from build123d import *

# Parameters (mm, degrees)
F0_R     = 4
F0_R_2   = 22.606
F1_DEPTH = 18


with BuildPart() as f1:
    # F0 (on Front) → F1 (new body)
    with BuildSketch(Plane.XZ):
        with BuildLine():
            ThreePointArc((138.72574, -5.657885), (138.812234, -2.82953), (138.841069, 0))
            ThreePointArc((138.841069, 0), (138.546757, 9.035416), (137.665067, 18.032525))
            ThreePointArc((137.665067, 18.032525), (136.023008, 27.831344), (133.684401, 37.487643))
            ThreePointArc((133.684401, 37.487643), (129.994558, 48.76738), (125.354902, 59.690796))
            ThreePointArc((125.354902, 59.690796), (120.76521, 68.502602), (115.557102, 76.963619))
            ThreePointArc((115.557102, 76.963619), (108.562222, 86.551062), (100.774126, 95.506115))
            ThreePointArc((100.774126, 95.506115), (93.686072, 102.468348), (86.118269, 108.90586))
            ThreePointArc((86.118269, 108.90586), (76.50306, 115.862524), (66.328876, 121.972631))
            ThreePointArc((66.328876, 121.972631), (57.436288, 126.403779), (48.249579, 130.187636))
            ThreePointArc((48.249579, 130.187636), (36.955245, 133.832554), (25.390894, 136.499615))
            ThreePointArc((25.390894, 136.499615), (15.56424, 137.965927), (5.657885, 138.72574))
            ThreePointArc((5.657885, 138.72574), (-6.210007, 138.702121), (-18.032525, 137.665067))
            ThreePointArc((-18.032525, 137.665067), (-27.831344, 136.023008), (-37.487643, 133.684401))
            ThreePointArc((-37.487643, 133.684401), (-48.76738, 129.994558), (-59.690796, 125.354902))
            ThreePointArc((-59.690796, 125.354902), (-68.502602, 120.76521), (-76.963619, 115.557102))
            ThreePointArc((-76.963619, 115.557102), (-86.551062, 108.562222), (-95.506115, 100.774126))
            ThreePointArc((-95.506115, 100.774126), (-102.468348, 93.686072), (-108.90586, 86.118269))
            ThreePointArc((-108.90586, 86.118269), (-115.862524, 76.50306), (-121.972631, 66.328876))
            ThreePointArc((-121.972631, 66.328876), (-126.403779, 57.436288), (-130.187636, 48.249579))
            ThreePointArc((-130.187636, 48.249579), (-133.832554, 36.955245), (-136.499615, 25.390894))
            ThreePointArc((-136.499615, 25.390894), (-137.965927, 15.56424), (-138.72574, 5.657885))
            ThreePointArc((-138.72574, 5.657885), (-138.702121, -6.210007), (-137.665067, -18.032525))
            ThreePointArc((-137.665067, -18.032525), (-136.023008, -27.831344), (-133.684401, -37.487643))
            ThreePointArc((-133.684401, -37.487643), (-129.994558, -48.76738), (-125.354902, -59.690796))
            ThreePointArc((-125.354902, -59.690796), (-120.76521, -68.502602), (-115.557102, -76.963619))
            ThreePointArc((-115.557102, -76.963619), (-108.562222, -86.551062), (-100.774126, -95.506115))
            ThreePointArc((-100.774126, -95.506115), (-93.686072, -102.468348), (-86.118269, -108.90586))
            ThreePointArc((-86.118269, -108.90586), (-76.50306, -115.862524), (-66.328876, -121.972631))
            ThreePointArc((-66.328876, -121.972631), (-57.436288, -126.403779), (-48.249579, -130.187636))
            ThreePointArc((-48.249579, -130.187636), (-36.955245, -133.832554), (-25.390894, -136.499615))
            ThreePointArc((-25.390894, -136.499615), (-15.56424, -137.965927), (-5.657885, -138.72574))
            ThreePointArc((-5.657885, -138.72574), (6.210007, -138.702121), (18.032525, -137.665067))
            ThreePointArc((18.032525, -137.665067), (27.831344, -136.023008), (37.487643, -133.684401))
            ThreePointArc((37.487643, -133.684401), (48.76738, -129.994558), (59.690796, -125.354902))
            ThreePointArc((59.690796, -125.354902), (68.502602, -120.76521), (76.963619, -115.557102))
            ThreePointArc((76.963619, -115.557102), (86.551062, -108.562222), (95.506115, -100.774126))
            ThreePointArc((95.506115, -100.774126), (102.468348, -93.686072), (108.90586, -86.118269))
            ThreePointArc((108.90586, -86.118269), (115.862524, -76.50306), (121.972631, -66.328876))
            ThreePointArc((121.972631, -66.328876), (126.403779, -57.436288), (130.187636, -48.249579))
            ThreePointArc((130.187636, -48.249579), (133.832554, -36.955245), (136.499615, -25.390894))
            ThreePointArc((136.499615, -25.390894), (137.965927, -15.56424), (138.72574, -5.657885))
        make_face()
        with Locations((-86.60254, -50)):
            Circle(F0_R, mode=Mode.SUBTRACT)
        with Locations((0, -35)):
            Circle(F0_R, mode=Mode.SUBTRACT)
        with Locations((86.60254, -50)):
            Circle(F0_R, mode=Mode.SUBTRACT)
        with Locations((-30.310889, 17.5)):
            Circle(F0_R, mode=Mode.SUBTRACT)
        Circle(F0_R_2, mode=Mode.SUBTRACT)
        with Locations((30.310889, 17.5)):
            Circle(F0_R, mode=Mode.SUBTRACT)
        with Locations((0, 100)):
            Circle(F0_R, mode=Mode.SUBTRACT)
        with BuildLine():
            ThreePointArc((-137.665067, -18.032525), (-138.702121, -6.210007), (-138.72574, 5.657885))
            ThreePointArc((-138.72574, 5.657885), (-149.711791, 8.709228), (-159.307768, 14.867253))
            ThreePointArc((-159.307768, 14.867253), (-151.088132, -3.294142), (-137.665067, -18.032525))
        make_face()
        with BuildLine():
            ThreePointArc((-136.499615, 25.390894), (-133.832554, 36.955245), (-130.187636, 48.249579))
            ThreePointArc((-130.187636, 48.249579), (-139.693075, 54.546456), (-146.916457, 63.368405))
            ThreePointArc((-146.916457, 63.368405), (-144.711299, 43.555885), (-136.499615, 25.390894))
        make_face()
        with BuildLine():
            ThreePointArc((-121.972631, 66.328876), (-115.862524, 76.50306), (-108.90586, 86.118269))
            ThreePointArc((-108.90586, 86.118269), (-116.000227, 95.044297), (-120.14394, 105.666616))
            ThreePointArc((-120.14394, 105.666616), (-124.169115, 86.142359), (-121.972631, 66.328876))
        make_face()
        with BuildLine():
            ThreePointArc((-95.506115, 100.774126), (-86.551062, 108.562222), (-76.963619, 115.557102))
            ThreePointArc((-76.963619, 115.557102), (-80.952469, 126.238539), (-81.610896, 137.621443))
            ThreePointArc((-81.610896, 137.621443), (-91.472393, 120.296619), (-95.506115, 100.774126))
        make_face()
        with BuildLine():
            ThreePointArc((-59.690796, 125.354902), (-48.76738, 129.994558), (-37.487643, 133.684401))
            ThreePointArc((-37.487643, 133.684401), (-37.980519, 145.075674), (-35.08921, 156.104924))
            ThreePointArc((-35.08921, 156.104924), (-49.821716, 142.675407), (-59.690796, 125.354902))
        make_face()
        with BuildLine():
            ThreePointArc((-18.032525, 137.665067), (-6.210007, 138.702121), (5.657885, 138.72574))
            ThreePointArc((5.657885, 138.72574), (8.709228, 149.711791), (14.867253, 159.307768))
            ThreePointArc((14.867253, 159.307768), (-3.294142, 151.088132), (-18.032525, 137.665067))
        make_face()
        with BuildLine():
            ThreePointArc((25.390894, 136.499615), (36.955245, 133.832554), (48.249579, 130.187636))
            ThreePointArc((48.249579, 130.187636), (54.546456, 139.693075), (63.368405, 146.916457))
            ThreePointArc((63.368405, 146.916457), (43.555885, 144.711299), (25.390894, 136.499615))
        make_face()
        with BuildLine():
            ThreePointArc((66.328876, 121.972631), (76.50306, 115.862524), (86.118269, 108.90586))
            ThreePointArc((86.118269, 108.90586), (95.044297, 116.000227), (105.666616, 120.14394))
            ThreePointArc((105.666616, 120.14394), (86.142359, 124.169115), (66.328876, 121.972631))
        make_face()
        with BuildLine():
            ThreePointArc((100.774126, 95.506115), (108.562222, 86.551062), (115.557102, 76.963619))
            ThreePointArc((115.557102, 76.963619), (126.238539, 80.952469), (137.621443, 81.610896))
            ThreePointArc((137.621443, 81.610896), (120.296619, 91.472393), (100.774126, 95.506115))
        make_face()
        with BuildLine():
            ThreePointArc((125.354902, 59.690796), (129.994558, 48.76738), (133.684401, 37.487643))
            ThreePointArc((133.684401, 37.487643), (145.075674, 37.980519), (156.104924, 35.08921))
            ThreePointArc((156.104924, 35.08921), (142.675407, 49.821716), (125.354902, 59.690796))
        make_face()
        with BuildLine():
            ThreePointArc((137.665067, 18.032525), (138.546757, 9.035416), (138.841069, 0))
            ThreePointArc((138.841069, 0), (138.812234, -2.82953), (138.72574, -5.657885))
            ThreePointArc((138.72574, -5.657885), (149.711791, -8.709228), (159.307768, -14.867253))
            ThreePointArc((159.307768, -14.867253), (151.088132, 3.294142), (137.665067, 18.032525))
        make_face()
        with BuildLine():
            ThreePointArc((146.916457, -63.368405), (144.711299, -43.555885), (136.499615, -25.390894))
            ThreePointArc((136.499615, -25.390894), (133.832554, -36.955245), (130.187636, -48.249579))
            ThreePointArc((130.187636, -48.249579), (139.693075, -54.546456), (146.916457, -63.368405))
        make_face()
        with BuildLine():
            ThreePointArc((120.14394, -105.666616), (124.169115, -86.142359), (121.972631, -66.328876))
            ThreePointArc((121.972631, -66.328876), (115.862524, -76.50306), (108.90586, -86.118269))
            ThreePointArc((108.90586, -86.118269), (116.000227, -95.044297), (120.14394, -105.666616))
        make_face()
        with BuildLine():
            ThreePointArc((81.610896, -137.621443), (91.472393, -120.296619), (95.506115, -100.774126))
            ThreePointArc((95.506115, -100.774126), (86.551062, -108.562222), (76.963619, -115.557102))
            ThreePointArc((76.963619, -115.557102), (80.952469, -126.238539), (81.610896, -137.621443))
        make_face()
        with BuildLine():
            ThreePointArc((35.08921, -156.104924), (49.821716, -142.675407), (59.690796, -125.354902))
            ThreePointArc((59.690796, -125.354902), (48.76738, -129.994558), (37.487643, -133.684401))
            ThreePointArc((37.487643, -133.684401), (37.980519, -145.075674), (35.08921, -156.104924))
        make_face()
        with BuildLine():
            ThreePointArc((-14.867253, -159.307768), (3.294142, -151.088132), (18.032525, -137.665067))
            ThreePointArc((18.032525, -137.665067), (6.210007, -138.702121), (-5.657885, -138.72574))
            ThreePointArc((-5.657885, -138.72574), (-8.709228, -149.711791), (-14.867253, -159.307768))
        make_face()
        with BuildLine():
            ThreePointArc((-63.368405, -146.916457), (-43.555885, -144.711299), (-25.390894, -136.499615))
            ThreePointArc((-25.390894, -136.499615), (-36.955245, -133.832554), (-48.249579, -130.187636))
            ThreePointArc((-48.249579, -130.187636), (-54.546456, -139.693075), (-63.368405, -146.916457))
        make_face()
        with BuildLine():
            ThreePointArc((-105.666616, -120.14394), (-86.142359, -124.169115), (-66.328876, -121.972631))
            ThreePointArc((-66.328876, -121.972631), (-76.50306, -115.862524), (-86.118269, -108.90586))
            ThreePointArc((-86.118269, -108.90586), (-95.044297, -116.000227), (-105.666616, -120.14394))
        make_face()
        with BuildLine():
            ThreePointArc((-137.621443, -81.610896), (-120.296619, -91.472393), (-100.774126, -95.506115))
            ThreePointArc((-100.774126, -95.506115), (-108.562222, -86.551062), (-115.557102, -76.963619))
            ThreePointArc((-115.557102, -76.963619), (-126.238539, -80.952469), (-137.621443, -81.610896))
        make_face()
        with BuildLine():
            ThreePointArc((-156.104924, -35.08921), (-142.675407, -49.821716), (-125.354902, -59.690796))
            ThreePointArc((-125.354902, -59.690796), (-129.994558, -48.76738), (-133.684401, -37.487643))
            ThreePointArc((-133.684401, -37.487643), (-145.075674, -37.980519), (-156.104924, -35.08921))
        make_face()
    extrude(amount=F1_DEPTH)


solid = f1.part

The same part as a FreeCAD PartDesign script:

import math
import FreeCAD as App
import Part
import Sketcher
Q = App.Units.Quantity

doc = App.newDocument("Part")
body = doc.addObject("PartDesign::Body", "Body")

sketch1 = body.newObject("Sketcher::SketchObject", "Sketch")
sketch1.AttachmentSupport = (doc.getObject("XZ_Plane"), [""])
sketch1.MapMode = "FlatFace"
sketch1.addGeometry([
    Part.ArcOfCircle(Part.Circle(App.Vector(-0.000171, -0.00004, 0), App.Vector(0, 0, 1), 138.841245), math.radians(7.462601), math.radians(15.664501)),
    Part.ArcOfCircle(Part.Circle(App.Vector(141.012711, -0.000011, 0), App.Vector(0, 0, 1), 38.197229), math.radians(66.726992), math.radians(101.06103)),
    Part.ArcOfCircle(Part.Circle(App.Vector(102.815496, 0.000003, 0), App.Vector(0, 0, 1), 63.80451), math.radians(33.363493), math.radians(69.313327)),
    Part.ArcOfCircle(Part.Circle(App.Vector(-0.000121, -0.000072, 0), App.Vector(0, 0, 1), 138.84121), math.radians(25.4626), math.radians(33.664501)),
    Part.ArcOfCircle(Part.Circle(App.Vector(134.111059, 43.575321, 0), App.Vector(0, 0, 1), 38.197222), math.radians(84.726988), math.radians(119.061033)),
    Part.ArcOfCircle(Part.Circle(App.Vector(97.78335, 31.771747, 0), App.Vector(0, 0, 1), 63.804502), math.radians(51.363491), math.radians(87.31333)),
    Part.ArcOfCircle(Part.Circle(App.Vector(-0.000104, -0.000109, 0), App.Vector(0, 0, 1), 138.84122), math.radians(43.462597), math.radians(51.664499)),
    Part.ArcOfCircle(Part.Circle(App.Vector(114.081691, 82.885176, 0), App.Vector(0, 0, 1), 38.197238), math.radians(102.726998), math.radians(137.061027)),
    Part.ArcOfCircle(Part.Circle(App.Vector(83.179482, 60.433429, 0), App.Vector(0, 0, 1), 63.804517), math.radians(69.363496), math.radians(105.313326)),
    Part.ArcOfCircle(Part.Circle(App.Vector(0.000032, 0.000066, 0), App.Vector(0, 0, 1), 138.840996), math.radians(61.462593), math.radians(69.664507)),
    Part.ArcOfCircle(Part.Circle(App.Vector(82.885197, 114.081677, 0), App.Vector(0, 0, 1), 38.197224), math.radians(120.72699), math.radians(155.061033)),
    Part.ArcOfCircle(Part.Circle(App.Vector(60.43343, 83.179489, 0), App.Vector(0, 0, 1), 63.804507), math.radians(87.363493), math.radians(123.31333)),
    Part.ArcOfCircle(Part.Circle(App.Vector(0.000008, 0.000116, 0), App.Vector(0, 0, 1), 138.840953), math.radians(79.462589), math.radians(87.664506)),
    Part.ArcOfCircle(Part.Circle(App.Vector(43.57532, 134.111061, 0), App.Vector(0, 0, 1), 38.197214), math.radians(138.726985), math.radians(173.061037)),
    Part.ArcOfCircle(Part.Circle(App.Vector(31.771741, 97.783338, 0), App.Vector(0, 0, 1), 63.804523), math.radians(105.363497), math.radians(141.313324)),
    Part.ArcOfCircle(Part.Circle(App.Vector(0.00004, -0.000171, 0), App.Vector(0, 0, 1), 138.841245), math.radians(97.462601), math.radians(105.664501)),
    Part.ArcOfCircle(Part.Circle(App.Vector(0.000011, 141.012711, 0), App.Vector(0, 0, 1), 38.197229), math.radians(156.726992), math.radians(191.06103)),
    Part.ArcOfCircle(Part.Circle(App.Vector(-0.000003, 102.815496, 0), App.Vector(0, 0, 1), 63.80451), math.radians(123.363493), math.radians(159.313327)),
    Part.ArcOfCircle(Part.Circle(App.Vector(0.000072, -0.000121, 0), App.Vector(0, 0, 1), 138.84121), math.radians(115.4626), math.radians(123.664501)),
    Part.ArcOfCircle(Part.Circle(App.Vector(-43.575321, 134.111059, 0), App.Vector(0, 0, 1), 38.197222), math.radians(174.726988), math.radians(209.061033)),
    Part.ArcOfCircle(Part.Circle(App.Vector(-31.771747, 97.78335, 0), App.Vector(0, 0, 1), 63.804502), math.radians(141.363491), math.radians(177.31333)),
    Part.ArcOfCircle(Part.Circle(App.Vector(0.000109, -0.000104, 0), App.Vector(0, 0, 1), 138.84122), math.radians(133.462597), math.radians(141.664499)),
    Part.ArcOfCircle(Part.Circle(App.Vector(-82.885176, 114.081691, 0), App.Vector(0, 0, 1), 38.197238), math.radians(-167.273002), math.radians(-132.938973)),
    Part.ArcOfCircle(Part.Circle(App.Vector(-60.433429, 83.179482, 0), App.Vector(0, 0, 1), 63.804517), math.radians(159.363496), math.radians(195.313326)),
    Part.ArcOfCircle(Part.Circle(App.Vector(-0.000066, 0.000032, 0), App.Vector(0, 0, 1), 138.840996), math.radians(151.462593), math.radians(159.664507)),
    Part.ArcOfCircle(Part.Circle(App.Vector(-114.081677, 82.885197, 0), App.Vector(0, 0, 1), 38.197224), math.radians(-149.27301), math.radians(-114.938967)),
    Part.ArcOfCircle(Part.Circle(App.Vector(-83.179489, 60.43343, 0), App.Vector(0, 0, 1), 63.804507), math.radians(177.363493), math.radians(213.31333)),
    Part.ArcOfCircle(Part.Circle(App.Vector(-0.000116, 0.000008, 0), App.Vector(0, 0, 1), 138.840953), math.radians(169.462589), math.radians(177.664506)),
    Part.ArcOfCircle(Part.Circle(App.Vector(-134.111061, 43.57532, 0), App.Vector(0, 0, 1), 38.197214), math.radians(-131.273015), math.radians(-96.938963)),
    Part.ArcOfCircle(Part.Circle(App.Vector(-97.783338, 31.771741, 0), App.Vector(0, 0, 1), 63.804523), math.radians(-164.636503), math.radians(-128.686676)),
    Part.ArcOfCircle(Part.Circle(App.Vector(0.000171, 0.00004, 0), App.Vector(0, 0, 1), 138.841245), math.radians(-172.537399), math.radians(-164.335499)),
    Part.ArcOfCircle(Part.Circle(App.Vector(-141.012711, 0.000011, 0), App.Vector(0, 0, 1), 38.197229), math.radians(-113.273008), math.radians(-78.93897)),
    Part.ArcOfCircle(Part.Circle(App.Vector(-102.815496, -0.000003, 0), App.Vector(0, 0, 1), 63.80451), math.radians(-146.636507), math.radians(-110.686673)),
    Part.ArcOfCircle(Part.Circle(App.Vector(0.000121, 0.000072, 0), App.Vector(0, 0, 1), 138.84121), math.radians(-154.5374), math.radians(-146.335499)),
    Part.ArcOfCircle(Part.Circle(App.Vector(-134.111059, -43.575321, 0), App.Vector(0, 0, 1), 38.197222), math.radians(-95.273012), math.radians(-60.938967)),
    Part.ArcOfCircle(Part.Circle(App.Vector(-97.78335, -31.771747, 0), App.Vector(0, 0, 1), 63.804502), math.radians(-128.636509), math.radians(-92.68667)),
    Part.ArcOfCircle(Part.Circle(App.Vector(0.000104, 0.000109, 0), App.Vector(0, 0, 1), 138.84122), math.radians(-136.537403), math.radians(-128.335501)),
    Part.ArcOfCircle(Part.Circle(App.Vector(-114.081691, -82.885176, 0), App.Vector(0, 0, 1), 38.197238), math.radians(-77.273002), math.radians(-42.938973)),
    Part.ArcOfCircle(Part.Circle(App.Vector(-83.179482, -60.433429, 0), App.Vector(0, 0, 1), 63.804517), math.radians(-110.636504), math.radians(-74.686674)),
    Part.ArcOfCircle(Part.Circle(App.Vector(-0.000032, -0.000066, 0), App.Vector(0, 0, 1), 138.840996), math.radians(-118.537407), math.radians(-110.335493)),
    Part.ArcOfCircle(Part.Circle(App.Vector(-82.885197, -114.081677, 0), App.Vector(0, 0, 1), 38.197224), math.radians(-59.27301), math.radians(-24.938967)),
    Part.ArcOfCircle(Part.Circle(App.Vector(-60.43343, -83.179489, 0), App.Vector(0, 0, 1), 63.804507), math.radians(-92.636507), math.radians(-56.68667)),
    Part.ArcOfCircle(Part.Circle(App.Vector(-0.000008, -0.000116, 0), App.Vector(0, 0, 1), 138.840953), math.radians(-100.537411), math.radians(-92.335494)),
    Part.ArcOfCircle(Part.Circle(App.Vector(-43.57532, -134.111061, 0), App.Vector(0, 0, 1), 38.197214), math.radians(-41.273015), math.radians(-6.938963)),
    Part.ArcOfCircle(Part.Circle(App.Vector(-31.771741, -97.783338, 0), App.Vector(0, 0, 1), 63.804523), math.radians(-74.636503), math.radians(-38.686676)),
    Part.ArcOfCircle(Part.Circle(App.Vector(-0.00004, 0.000171, 0), App.Vector(0, 0, 1), 138.841245), math.radians(-82.537399), math.radians(-74.335499)),
    Part.ArcOfCircle(Part.Circle(App.Vector(-0.000011, -141.012711, 0), App.Vector(0, 0, 1), 38.197229), math.radians(-23.273008), math.radians(11.06103)),
    Part.ArcOfCircle(Part.Circle(App.Vector(0.000003, -102.815496, 0), App.Vector(0, 0, 1), 63.80451), math.radians(-56.636507), math.radians(-20.686673)),
    Part.ArcOfCircle(Part.Circle(App.Vector(-0.000072, 0.000121, 0), App.Vector(0, 0, 1), 138.84121), math.radians(-64.5374), math.radians(-56.335499)),
    Part.ArcOfCircle(Part.Circle(App.Vector(43.575321, -134.111059, 0), App.Vector(0, 0, 1), 38.197222), math.radians(-5.273012), math.radians(29.061033)),
    Part.ArcOfCircle(Part.Circle(App.Vector(31.771747, -97.78335, 0), App.Vector(0, 0, 1), 63.804502), math.radians(-38.636509), math.radians(-2.68667)),
    Part.ArcOfCircle(Part.Circle(App.Vector(-0.000109, 0.000104, 0), App.Vector(0, 0, 1), 138.84122), math.radians(-46.537403), math.radians(-38.335501)),
    Part.ArcOfCircle(Part.Circle(App.Vector(82.885176, -114.081691, 0), App.Vector(0, 0, 1), 38.197238), math.radians(12.726998), math.radians(47.061027)),
    Part.ArcOfCircle(Part.Circle(App.Vector(60.433429, -83.179482, 0), App.Vector(0, 0, 1), 63.804517), math.radians(-20.636504), math.radians(15.313326)),
    Part.ArcOfCircle(Part.Circle(App.Vector(0.000066, -0.000032, 0), App.Vector(0, 0, 1), 138.840996), math.radians(-28.537407), math.radians(-20.335493)),
    Part.ArcOfCircle(Part.Circle(App.Vector(114.081677, -82.885197, 0), App.Vector(0, 0, 1), 38.197224), math.radians(30.72699), math.radians(65.061033)),
    Part.ArcOfCircle(Part.Circle(App.Vector(83.179489, -60.43343, 0), App.Vector(0, 0, 1), 63.804507), math.radians(-2.636507), math.radians(33.31333)),
    Part.ArcOfCircle(Part.Circle(App.Vector(0.000116, -0.000008, 0), App.Vector(0, 0, 1), 138.840953), math.radians(-10.537411), math.radians(-2.335494)),
    Part.ArcOfCircle(Part.Circle(App.Vector(134.111061, -43.57532, 0), App.Vector(0, 0, 1), 38.197214), math.radians(48.726985), math.radians(83.061037)),
    Part.ArcOfCircle(Part.Circle(App.Vector(97.783338, -31.771741, 0), App.Vector(0, 0, 1), 63.804523), math.radians(15.363497), math.radians(51.313324)),
    Part.Circle(App.Vector(-86.60254, -50, 0), App.Vector(0, 0, 1), 4),
    Part.Circle(App.Vector(-30.310889, 17.5, 0), App.Vector(0, 0, 1), 4),
    Part.Circle(App.Vector(0, -35, 0), App.Vector(0, 0, 1), 4),
    Part.Circle(App.Vector(86.60254, -50, 0), App.Vector(0, 0, 1), 4),
    Part.Circle(App.Vector(0, 0, 0), App.Vector(0, 0, 1), 22.606),
    Part.Circle(App.Vector(30.310889, 17.5, 0), App.Vector(0, 0, 1), 4),
    Part.Circle(App.Vector(0, 100, 0), App.Vector(0, 0, 1), 4),
], False)
sketch1.addConstraint([
    Sketcher.Constraint("Coincident", 0, 2, 1, 2),
    Sketcher.Constraint("Coincident", 1, 1, 2, 1),
    Sketcher.Constraint("Coincident", 2, 2, 3, 1),
    Sketcher.Constraint("Coincident", 3, 2, 4, 2),
    Sketcher.Constraint("Coincident", 4, 1, 5, 1),
    Sketcher.Constraint("Coincident", 5, 2, 6, 1),
    Sketcher.Constraint("Coincident", 6, 2, 7, 2),
    Sketcher.Constraint("Coincident", 7, 1, 8, 1),
    Sketcher.Constraint("Coincident", 8, 2, 9, 1),
    Sketcher.Constraint("Coincident", 9, 2, 10, 2),
    Sketcher.Constraint("Coincident", 10, 1, 11, 1),
    Sketcher.Constraint("Coincident", 11, 2, 12, 1),
    Sketcher.Constraint("Coincident", 12, 2, 13, 2),
    Sketcher.Constraint("Coincident", 13, 1, 14, 1),
    Sketcher.Constraint("Coincident", 14, 2, 15, 1),
    Sketcher.Constraint("Coincident", 15, 2, 16, 2),
    Sketcher.Constraint("Coincident", 16, 1, 17, 1),
    Sketcher.Constraint("Coincident", 17, 2, 18, 1),
    Sketcher.Constraint("Coincident", 18, 2, 19, 2),
    Sketcher.Constraint("Coincident", 19, 1, 20, 1),
    Sketcher.Constraint("Coincident", 20, 2, 21, 1),
    Sketcher.Constraint("Coincident", 21, 2, 22, 2),
    Sketcher.Constraint("Coincident", 22, 1, 23, 1),
    Sketcher.Constraint("Coincident", 23, 2, 24, 1),
    Sketcher.Constraint("Coincident", 24, 2, 25, 2),
    Sketcher.Constraint("Coincident", 25, 1, 26, 1),
    Sketcher.Constraint("Coincident", 26, 2, 27, 1),
    Sketcher.Constraint("Coincident", 27, 2, 28, 2),
    Sketcher.Constraint("Coincident", 28, 1, 29, 1),
    Sketcher.Constraint("Coincident", 29, 2, 30, 1),
    Sketcher.Constraint("Coincident", 30, 2, 31, 2),
    Sketcher.Constraint("Coincident", 31, 1, 32, 1),
    Sketcher.Constraint("Coincident", 32, 2, 33, 1),
    Sketcher.Constraint("Coincident", 33, 2, 34, 2),
    Sketcher.Constraint("Coincident", 34, 1, 35, 1),
    Sketcher.Constraint("Coincident", 35, 2, 36, 1),
    Sketcher.Constraint("Coincident", 36, 2, 37, 2),
    Sketcher.Constraint("Coincident", 37, 1, 38, 1),
    Sketcher.Constraint("Coincident", 38, 2, 39, 1),
    Sketcher.Constraint("Coincident", 39, 2, 40, 2),
    Sketcher.Constraint("Coincident", 40, 1, 41, 1),
    Sketcher.Constraint("Coincident", 41, 2, 42, 1),
    Sketcher.Constraint("Coincident", 42, 2, 43, 2),
    Sketcher.Constraint("Coincident", 43, 1, 44, 1),
    Sketcher.Constraint("Coincident", 44, 2, 45, 1),
    Sketcher.Constraint("Coincident", 45, 2, 46, 2),
    Sketcher.Constraint("Coincident", 46, 1, 47, 1),
    Sketcher.Constraint("Coincident", 47, 2, 48, 1),
    Sketcher.Constraint("Coincident", 48, 2, 49, 2),
    Sketcher.Constraint("Coincident", 49, 1, 50, 1),
    Sketcher.Constraint("Coincident", 50, 2, 51, 1),
    Sketcher.Constraint("Coincident", 51, 2, 52, 2),
    Sketcher.Constraint("Coincident", 52, 1, 53, 1),
    Sketcher.Constraint("Coincident", 53, 2, 54, 1),
    Sketcher.Constraint("Coincident", 54, 2, 55, 2),
    Sketcher.Constraint("Coincident", 55, 1, 56, 1),
    Sketcher.Constraint("Coincident", 56, 2, 57, 1),
    Sketcher.Constraint("Coincident", 57, 2, 58, 2),
    Sketcher.Constraint("Coincident", 58, 1, 59, 1),
    Sketcher.Constraint("Coincident", 59, 2, 0, 1),
    Sketcher.Constraint("Coincident", 64, 3, -1, 1),
    Sketcher.Constraint("PointOnObject", 62, 3, -2),
    Sketcher.Constraint("PointOnObject", 66, 3, -2),
    Sketcher.Constraint("Diameter", 60, Q("8 mm")),
    Sketcher.Constraint("Diameter", 61, Q("8 mm")),
    Sketcher.Constraint("Diameter", 62, Q("8 mm")),
    Sketcher.Constraint("Diameter", 63, Q("8 mm")),
    Sketcher.Constraint("Diameter", 65, Q("8 mm")),
    Sketcher.Constraint("Diameter", 66, Q("8 mm")),
    Sketcher.Constraint("Diameter", 64, Q("45.212 mm")),
    Sketcher.Constraint("DistanceY", 60, 3, -1, 1, Q("50 mm")),
    Sketcher.Constraint("DistanceY", 62, 3, -1, 1, Q("35 mm")),
    Sketcher.Constraint("DistanceY", 63, 3, -1, 1, Q("50 mm")),
    Sketcher.Constraint("DistanceY", -1, 1, 66, 3, Q("100 mm")),
    Sketcher.Constraint("DistanceY", -1, 1, 61, 3, Q("17.5 mm")),
    Sketcher.Constraint("DistanceY", -1, 1, 65, 3, Q("17.5 mm")),
    Sketcher.Constraint("Radius", 5, Q("63.804502 mm")),
    Sketcher.Constraint("Radius", 20, Q("63.804502 mm")),
    Sketcher.Constraint("Radius", 35, Q("63.804502 mm")),
    Sketcher.Constraint("Radius", 50, Q("63.804502 mm")),
    Sketcher.Constraint("Radius", 1, Q("38.197229 mm")),
    Sketcher.Constraint("Radius", 2, Q("63.80451 mm")),
    Sketcher.Constraint("Radius", 3, Q("138.84121 mm")),
    Sketcher.Constraint("Radius", 4, Q("38.197222 mm")),
    Sketcher.Constraint("Radius", 6, Q("138.84122 mm")),
    Sketcher.Constraint("Radius", 7, Q("38.197238 mm")),
    Sketcher.Constraint("Radius", 16, Q("38.197229 mm")),
    Sketcher.Constraint("Radius", 17, Q("63.80451 mm")),
    Sketcher.Constraint("Radius", 18, Q("138.84121 mm")),
    Sketcher.Constraint("Radius", 19, Q("38.197222 mm")),
    Sketcher.Constraint("Radius", 21, Q("138.84122 mm")),
    Sketcher.Constraint("Radius", 22, Q("38.197238 mm")),
    Sketcher.Constraint("Radius", 31, Q("38.197229 mm")),
    Sketcher.Constraint("Radius", 32, Q("63.80451 mm")),
    Sketcher.Constraint("Radius", 33, Q("138.84121 mm")),
    Sketcher.Constraint("Radius", 34, Q("38.197222 mm")),
    Sketcher.Constraint("Radius", 36, Q("138.84122 mm")),
    Sketcher.Constraint("Radius", 37, Q("38.197238 mm")),
    Sketcher.Constraint("Radius", 46, Q("38.197229 mm")),
    Sketcher.Constraint("Radius", 47, Q("63.80451 mm")),
    Sketcher.Constraint("Radius", 48, Q("138.84121 mm")),
    Sketcher.Constraint("Radius", 49, Q("38.197222 mm")),
    Sketcher.Constraint("Radius", 51, Q("138.84122 mm")),
    Sketcher.Constraint("Radius", 52, Q("38.197238 mm")),
    Sketcher.Constraint("Radius", 0, Q("138.841245 mm")),
    Sketcher.Constraint("Radius", 8, Q("63.804517 mm")),
    Sketcher.Constraint("Radius", 9, Q("138.840996 mm")),
    Sketcher.Constraint("Radius", 10, Q("38.197224 mm")),
    Sketcher.Constraint("Radius", 11, Q("63.804507 mm")),
    Sketcher.Constraint("Radius", 12, Q("138.840953 mm")),
    Sketcher.Constraint("Radius", 13, Q("38.197214 mm")),
    Sketcher.Constraint("Radius", 14, Q("63.804523 mm")),
    Sketcher.Constraint("Radius", 15, Q("138.841245 mm")),
    Sketcher.Constraint("Radius", 23, Q("63.804517 mm")),
    Sketcher.Constraint("Radius", 24, Q("138.840996 mm")),
    Sketcher.Constraint("Radius", 25, Q("38.197224 mm")),
    Sketcher.Constraint("Radius", 26, Q("63.804507 mm")),
    Sketcher.Constraint("Radius", 27, Q("138.840953 mm")),
    Sketcher.Constraint("Radius", 28, Q("38.197214 mm")),
    Sketcher.Constraint("Radius", 29, Q("63.804523 mm")),
    Sketcher.Constraint("Radius", 30, Q("138.841245 mm")),
    Sketcher.Constraint("Radius", 38, Q("63.804517 mm")),
    Sketcher.Constraint("Radius", 39, Q("138.840996 mm")),
    Sketcher.Constraint("Radius", 40, Q("38.197224 mm")),
    Sketcher.Constraint("Radius", 41, Q("63.804507 mm")),
    Sketcher.Constraint("Radius", 42, Q("138.840953 mm")),
    Sketcher.Constraint("Radius", 43, Q("38.197214 mm")),
    Sketcher.Constraint("Radius", 44, Q("63.804523 mm")),
    Sketcher.Constraint("Radius", 45, Q("138.841245 mm")),
    Sketcher.Constraint("Radius", 53, Q("63.804517 mm")),
    Sketcher.Constraint("Radius", 54, Q("138.840996 mm")),
    Sketcher.Constraint("Radius", 55, Q("38.197224 mm")),
    Sketcher.Constraint("Radius", 56, Q("63.804507 mm")),
    Sketcher.Constraint("Radius", 57, Q("138.840953 mm")),
    Sketcher.Constraint("Radius", 58, Q("38.197214 mm")),
    Sketcher.Constraint("Radius", 59, Q("63.804523 mm")),
    Sketcher.Constraint("DistanceX", -1, 1, 0, 2, Q("133.684401 mm")),
    Sketcher.Constraint("DistanceX", -1, 1, 2, 2, Q("125.354902 mm")),
    Sketcher.Constraint("DistanceX", -1, 1, 3, 2, Q("115.557102 mm")),
    Sketcher.Constraint("DistanceY", -1, 1, 15, 2, Q("133.684401 mm")),
    Sketcher.Constraint("DistanceY", -1, 1, 17, 2, Q("125.354902 mm")),
    Sketcher.Constraint("DistanceY", -1, 1, 18, 2, Q("115.557102 mm")),
    Sketcher.Constraint("DistanceX", 30, 2, -1, 1, Q("133.684401 mm")),
    Sketcher.Constraint("DistanceX", 32, 2, -1, 1, Q("125.354902 mm")),
    Sketcher.Constraint("DistanceX", 33, 2, -1, 1, Q("115.557102 mm")),
    Sketcher.Constraint("DistanceY", 45, 2, -1, 1, Q("133.684401 mm")),
    Sketcher.Constraint("DistanceY", 47, 2, -1, 1, Q("125.354902 mm")),
    Sketcher.Constraint("DistanceY", 48, 2, -1, 1, Q("115.557102 mm")),
    Sketcher.Constraint("DistanceX", 0, 3, -1, 1, Q("0.000171 mm")),
    Sketcher.Constraint("DistanceX", -1, 1, 1, 3, Q("141.012711 mm")),
    Sketcher.Constraint("DistanceX", 3, 3, -1, 1, Q("0.000121 mm")),
    Sketcher.Constraint("DistanceX", -1, 1, 4, 3, Q("134.111059 mm")),
    Sketcher.Constraint("DistanceY", -1, 1, 4, 3, Q("43.575321 mm")),
    Sketcher.Constraint("DistanceX", -1, 1, 5, 3, Q("97.78335 mm")),
    Sketcher.Constraint("DistanceY", 6, 3, -1, 1, Q("0.000109 mm")),
    Sketcher.Constraint("DistanceX", -1, 1, 7, 3, Q("114.081691 mm")),
    Sketcher.Constraint("DistanceY", -1, 1, 8, 3, Q("60.433429 mm")),
    Sketcher.Constraint("DistanceX", -1, 1, 11, 3, Q("60.43343 mm")),
    Sketcher.Constraint("DistanceY", -1, 1, 11, 3, Q("83.179489 mm")),
    Sketcher.Constraint("DistanceX", -1, 1, 13, 3, Q("43.57532 mm")),
    Sketcher.Constraint("DistanceY", -1, 1, 13, 3, Q("134.111061 mm")),
    Sketcher.Constraint("DistanceX", -1, 1, 14, 3, Q("31.771741 mm")),
    Sketcher.Constraint("DistanceY", -1, 1, 14, 3, Q("97.783338 mm")),
    Sketcher.Constraint("DistanceY", 15, 3, -1, 1, Q("0.000171 mm")),
    Sketcher.Constraint("DistanceY", -1, 1, 16, 3, Q("141.012711 mm")),
    Sketcher.Constraint("DistanceY", 18, 3, -1, 1, Q("0.000121 mm")),
    Sketcher.Constraint("DistanceX", 19, 3, -1, 1, Q("43.575321 mm")),
    Sketcher.Constraint("DistanceY", -1, 1, 19, 3, Q("134.111059 mm")),
    Sketcher.Constraint("DistanceY", -1, 1, 20, 3, Q("97.78335 mm")),
    Sketcher.Constraint("DistanceX", -1, 1, 21, 3, Q("0.000109 mm")),
    Sketcher.Constraint("DistanceY", -1, 1, 22, 3, Q("114.081691 mm")),
    Sketcher.Constraint("DistanceX", 23, 3, -1, 1, Q("60.433429 mm")),
    Sketcher.Constraint("DistanceX", 26, 3, -1, 1, Q("83.179489 mm")),
    Sketcher.Constraint("DistanceY", -1, 1, 26, 3, Q("60.43343 mm")),
    Sketcher.Constraint("DistanceX", 28, 3, -1, 1, Q("134.111061 mm")),
    Sketcher.Constraint("DistanceY", -1, 1, 28, 3, Q("43.57532 mm")),
    Sketcher.Constraint("DistanceX", 29, 3, -1, 1, Q("97.783338 mm")),
    Sketcher.Constraint("DistanceY", -1, 1, 29, 3, Q("31.771741 mm")),
    Sketcher.Constraint("DistanceX", -1, 1, 30, 3, Q("0.000171 mm")),
    Sketcher.Constraint("DistanceX", 31, 3, -1, 1, Q("141.012711 mm")),
    Sketcher.Constraint("DistanceX", -1, 1, 33, 3, Q("0.000121 mm")),
    Sketcher.Constraint("DistanceX", 34, 3, -1, 1, Q("134.111059 mm")),
    Sketcher.Constraint("DistanceY", 34, 3, -1, 1, Q("43.575321 mm")),
    Sketcher.Constraint("DistanceX", 35, 3, -1, 1, Q("97.78335 mm")),
    Sketcher.Constraint("DistanceY", -1, 1, 36, 3, Q("0.000109 mm")),
    Sketcher.Constraint("DistanceX", 37, 3, -1, 1, Q("114.081691 mm")),
    Sketcher.Constraint("DistanceY", 38, 3, -1, 1, Q("60.433429 mm")),
    Sketcher.Constraint("DistanceX", 41, 3, -1, 1, Q("60.43343 mm")),
    Sketcher.Constraint("DistanceY", 41, 3, -1, 1, Q("83.179489 mm")),
    Sketcher.Constraint("DistanceX", 43, 3, -1, 1, Q("43.57532 mm")),
    Sketcher.Constraint("DistanceY", 43, 3, -1, 1, Q("134.111061 mm")),
    Sketcher.Constraint("DistanceX", 44, 3, -1, 1, Q("31.771741 mm")),
    Sketcher.Constraint("DistanceY", 44, 3, -1, 1, Q("97.783338 mm")),
    Sketcher.Constraint("DistanceY", -1, 1, 45, 3, Q("0.000171 mm")),
    Sketcher.Constraint("DistanceY", 46, 3, -1, 1, Q("141.012711 mm")),
    Sketcher.Constraint("DistanceY", -1, 1, 48, 3, Q("0.000121 mm")),
    Sketcher.Constraint("DistanceX", -1, 1, 49, 3, Q("43.575321 mm")),
    Sketcher.Constraint("DistanceY", 49, 3, -1, 1, Q("134.111059 mm")),
    Sketcher.Constraint("DistanceY", 50, 3, -1, 1, Q("97.78335 mm")),
    Sketcher.Constraint("DistanceX", 51, 3, -1, 1, Q("0.000109 mm")),
    Sketcher.Constraint("DistanceY", 52, 3, -1, 1, Q("114.081691 mm")),
    Sketcher.Constraint("DistanceX", -1, 1, 53, 3, Q("60.433429 mm")),
    Sketcher.Constraint("DistanceX", -1, 1, 56, 3, Q("83.179489 mm")),
    Sketcher.Constraint("DistanceY", 56, 3, -1, 1, Q("60.43343 mm")),
    Sketcher.Constraint("DistanceX", -1, 1, 58, 3, Q("134.111061 mm")),
    Sketcher.Constraint("DistanceY", 58, 3, -1, 1, Q("43.57532 mm")),
    Sketcher.Constraint("DistanceX", -1, 1, 59, 3, Q("97.783338 mm")),
    Sketcher.Constraint("DistanceY", 59, 3, -1, 1, Q("31.771741 mm")),
    Sketcher.Constraint("DistanceX", 60, 3, -1, 1, Q("86.60254 mm")),
    Sketcher.Constraint("DistanceX", 61, 3, -1, 1, Q("30.310889 mm")),
    Sketcher.Constraint("DistanceX", -1, 1, 63, 3, Q("86.60254 mm")),
    Sketcher.Constraint("DistanceX", -1, 1, 65, 3, Q("30.310889 mm")),
    Sketcher.Constraint("DistanceY", -1, 1, 1, 1, Q("35.08921 mm")),
    Sketcher.Constraint("DistanceX", -1, 1, 6, 2, Q("86.118269 mm")),
    Sketcher.Constraint("DistanceY", -1, 1, 6, 2, Q("108.90586 mm")),
    Sketcher.Constraint("DistanceY", -1, 1, 7, 1, Q("120.14394 mm")),
    Sketcher.Constraint("DistanceY", -1, 1, 8, 2, Q("121.972631 mm")),
    Sketcher.Constraint("DistanceX", -1, 1, 9, 2, Q("48.249579 mm")),
    Sketcher.Constraint("DistanceY", -1, 1, 12, 2, Q("138.72574 mm")),
    Sketcher.Constraint("DistanceX", 16, 1, -1, 1, Q("35.08921 mm")),
    Sketcher.Constraint("DistanceX", 21, 2, -1, 1, Q("108.90586 mm")),
    Sketcher.Constraint("DistanceY", -1, 1, 21, 2, Q("86.118269 mm")),
    Sketcher.Constraint("DistanceX", 22, 1, -1, 1, Q("120.14394 mm")),
    Sketcher.Constraint("DistanceX", 23, 2, -1, 1, Q("121.972631 mm")),
    Sketcher.Constraint("DistanceY", -1, 1, 24, 2, Q("48.249579 mm")),
    Sketcher.Constraint("DistanceX", 27, 2, -1, 1, Q("138.72574 mm")),
    Sketcher.Constraint("DistanceY", 31, 1, -1, 1, Q("35.08921 mm")),
    Sketcher.Constraint("DistanceX", 36, 2, -1, 1, Q("86.118269 mm")),
    Sketcher.Constraint("DistanceY", 36, 2, -1, 1, Q("108.90586 mm")),
    Sketcher.Constraint("DistanceY", 37, 1, -1, 1, Q("120.14394 mm")),
    Sketcher.Constraint("DistanceY", 38, 2, -1, 1, Q("121.972631 mm")),
    Sketcher.Constraint("DistanceX", 39, 2, -1, 1, Q("48.249579 mm")),
    Sketcher.Constraint("DistanceY", 42, 2, -1, 1, Q("138.72574 mm")),
    Sketcher.Constraint("DistanceX", -1, 1, 46, 1, Q("35.08921 mm")),
    Sketcher.Constraint("DistanceX", -1, 1, 51, 2, Q("108.90586 mm")),
    Sketcher.Constraint("DistanceY", 51, 2, -1, 1, Q("86.118269 mm")),
    Sketcher.Constraint("DistanceX", -1, 1, 52, 1, Q("120.14394 mm")),
    Sketcher.Constraint("DistanceX", -1, 1, 53, 2, Q("121.972631 mm")),
    Sketcher.Constraint("DistanceY", 54, 2, -1, 1, Q("48.249579 mm")),
    Sketcher.Constraint("DistanceX", -1, 1, 57, 2, Q("138.72574 mm")),
    Sketcher.Constraint("DistanceX", -1, 1, 2, 3, Q("102.815496 mm")),
    Sketcher.Constraint("DistanceY", -1, 1, 5, 3, Q("31.771747 mm")),
    Sketcher.Constraint("DistanceX", -1, 1, 10, 3, Q("82.885197 mm")),
    Sketcher.Constraint("DistanceY", -1, 1, 10, 3, Q("114.081677 mm")),
    Sketcher.Constraint("DistanceY", -1, 1, 12, 3, Q("0.000116 mm")),
    Sketcher.Constraint("DistanceY", -1, 1, 17, 3, Q("102.815496 mm")),
    Sketcher.Constraint("DistanceX", 20, 3, -1, 1, Q("31.771747 mm")),
    Sketcher.Constraint("DistanceX", 25, 3, -1, 1, Q("114.081677 mm")),
    Sketcher.Constraint("DistanceY", -1, 1, 25, 3, Q("82.885197 mm")),
    Sketcher.Constraint("DistanceX", 27, 3, -1, 1, Q("0.000116 mm")),
    Sketcher.Constraint("DistanceX", 32, 3, -1, 1, Q("102.815496 mm")),
    Sketcher.Constraint("DistanceY", 35, 3, -1, 1, Q("31.771747 mm")),
    Sketcher.Constraint("DistanceX", 40, 3, -1, 1, Q("82.885197 mm")),
    Sketcher.Constraint("DistanceY", 40, 3, -1, 1, Q("114.081677 mm")),
    Sketcher.Constraint("DistanceY", 42, 3, -1, 1, Q("0.000116 mm")),
    Sketcher.Constraint("DistanceY", 47, 3, -1, 1, Q("102.815496 mm")),
    Sketcher.Constraint("DistanceX", -1, 1, 50, 3, Q("31.771747 mm")),
    Sketcher.Constraint("DistanceX", -1, 1, 55, 3, Q("114.081677 mm")),
    Sketcher.Constraint("DistanceY", 55, 3, -1, 1, Q("82.885197 mm")),
    Sketcher.Constraint("DistanceX", -1, 1, 57, 3, Q("0.000116 mm")),
])
pad1 = body.newObject("PartDesign::Pad", "Pad")
pad1.Profile = sketch1
pad1.Length = 18

doc.recompute()
